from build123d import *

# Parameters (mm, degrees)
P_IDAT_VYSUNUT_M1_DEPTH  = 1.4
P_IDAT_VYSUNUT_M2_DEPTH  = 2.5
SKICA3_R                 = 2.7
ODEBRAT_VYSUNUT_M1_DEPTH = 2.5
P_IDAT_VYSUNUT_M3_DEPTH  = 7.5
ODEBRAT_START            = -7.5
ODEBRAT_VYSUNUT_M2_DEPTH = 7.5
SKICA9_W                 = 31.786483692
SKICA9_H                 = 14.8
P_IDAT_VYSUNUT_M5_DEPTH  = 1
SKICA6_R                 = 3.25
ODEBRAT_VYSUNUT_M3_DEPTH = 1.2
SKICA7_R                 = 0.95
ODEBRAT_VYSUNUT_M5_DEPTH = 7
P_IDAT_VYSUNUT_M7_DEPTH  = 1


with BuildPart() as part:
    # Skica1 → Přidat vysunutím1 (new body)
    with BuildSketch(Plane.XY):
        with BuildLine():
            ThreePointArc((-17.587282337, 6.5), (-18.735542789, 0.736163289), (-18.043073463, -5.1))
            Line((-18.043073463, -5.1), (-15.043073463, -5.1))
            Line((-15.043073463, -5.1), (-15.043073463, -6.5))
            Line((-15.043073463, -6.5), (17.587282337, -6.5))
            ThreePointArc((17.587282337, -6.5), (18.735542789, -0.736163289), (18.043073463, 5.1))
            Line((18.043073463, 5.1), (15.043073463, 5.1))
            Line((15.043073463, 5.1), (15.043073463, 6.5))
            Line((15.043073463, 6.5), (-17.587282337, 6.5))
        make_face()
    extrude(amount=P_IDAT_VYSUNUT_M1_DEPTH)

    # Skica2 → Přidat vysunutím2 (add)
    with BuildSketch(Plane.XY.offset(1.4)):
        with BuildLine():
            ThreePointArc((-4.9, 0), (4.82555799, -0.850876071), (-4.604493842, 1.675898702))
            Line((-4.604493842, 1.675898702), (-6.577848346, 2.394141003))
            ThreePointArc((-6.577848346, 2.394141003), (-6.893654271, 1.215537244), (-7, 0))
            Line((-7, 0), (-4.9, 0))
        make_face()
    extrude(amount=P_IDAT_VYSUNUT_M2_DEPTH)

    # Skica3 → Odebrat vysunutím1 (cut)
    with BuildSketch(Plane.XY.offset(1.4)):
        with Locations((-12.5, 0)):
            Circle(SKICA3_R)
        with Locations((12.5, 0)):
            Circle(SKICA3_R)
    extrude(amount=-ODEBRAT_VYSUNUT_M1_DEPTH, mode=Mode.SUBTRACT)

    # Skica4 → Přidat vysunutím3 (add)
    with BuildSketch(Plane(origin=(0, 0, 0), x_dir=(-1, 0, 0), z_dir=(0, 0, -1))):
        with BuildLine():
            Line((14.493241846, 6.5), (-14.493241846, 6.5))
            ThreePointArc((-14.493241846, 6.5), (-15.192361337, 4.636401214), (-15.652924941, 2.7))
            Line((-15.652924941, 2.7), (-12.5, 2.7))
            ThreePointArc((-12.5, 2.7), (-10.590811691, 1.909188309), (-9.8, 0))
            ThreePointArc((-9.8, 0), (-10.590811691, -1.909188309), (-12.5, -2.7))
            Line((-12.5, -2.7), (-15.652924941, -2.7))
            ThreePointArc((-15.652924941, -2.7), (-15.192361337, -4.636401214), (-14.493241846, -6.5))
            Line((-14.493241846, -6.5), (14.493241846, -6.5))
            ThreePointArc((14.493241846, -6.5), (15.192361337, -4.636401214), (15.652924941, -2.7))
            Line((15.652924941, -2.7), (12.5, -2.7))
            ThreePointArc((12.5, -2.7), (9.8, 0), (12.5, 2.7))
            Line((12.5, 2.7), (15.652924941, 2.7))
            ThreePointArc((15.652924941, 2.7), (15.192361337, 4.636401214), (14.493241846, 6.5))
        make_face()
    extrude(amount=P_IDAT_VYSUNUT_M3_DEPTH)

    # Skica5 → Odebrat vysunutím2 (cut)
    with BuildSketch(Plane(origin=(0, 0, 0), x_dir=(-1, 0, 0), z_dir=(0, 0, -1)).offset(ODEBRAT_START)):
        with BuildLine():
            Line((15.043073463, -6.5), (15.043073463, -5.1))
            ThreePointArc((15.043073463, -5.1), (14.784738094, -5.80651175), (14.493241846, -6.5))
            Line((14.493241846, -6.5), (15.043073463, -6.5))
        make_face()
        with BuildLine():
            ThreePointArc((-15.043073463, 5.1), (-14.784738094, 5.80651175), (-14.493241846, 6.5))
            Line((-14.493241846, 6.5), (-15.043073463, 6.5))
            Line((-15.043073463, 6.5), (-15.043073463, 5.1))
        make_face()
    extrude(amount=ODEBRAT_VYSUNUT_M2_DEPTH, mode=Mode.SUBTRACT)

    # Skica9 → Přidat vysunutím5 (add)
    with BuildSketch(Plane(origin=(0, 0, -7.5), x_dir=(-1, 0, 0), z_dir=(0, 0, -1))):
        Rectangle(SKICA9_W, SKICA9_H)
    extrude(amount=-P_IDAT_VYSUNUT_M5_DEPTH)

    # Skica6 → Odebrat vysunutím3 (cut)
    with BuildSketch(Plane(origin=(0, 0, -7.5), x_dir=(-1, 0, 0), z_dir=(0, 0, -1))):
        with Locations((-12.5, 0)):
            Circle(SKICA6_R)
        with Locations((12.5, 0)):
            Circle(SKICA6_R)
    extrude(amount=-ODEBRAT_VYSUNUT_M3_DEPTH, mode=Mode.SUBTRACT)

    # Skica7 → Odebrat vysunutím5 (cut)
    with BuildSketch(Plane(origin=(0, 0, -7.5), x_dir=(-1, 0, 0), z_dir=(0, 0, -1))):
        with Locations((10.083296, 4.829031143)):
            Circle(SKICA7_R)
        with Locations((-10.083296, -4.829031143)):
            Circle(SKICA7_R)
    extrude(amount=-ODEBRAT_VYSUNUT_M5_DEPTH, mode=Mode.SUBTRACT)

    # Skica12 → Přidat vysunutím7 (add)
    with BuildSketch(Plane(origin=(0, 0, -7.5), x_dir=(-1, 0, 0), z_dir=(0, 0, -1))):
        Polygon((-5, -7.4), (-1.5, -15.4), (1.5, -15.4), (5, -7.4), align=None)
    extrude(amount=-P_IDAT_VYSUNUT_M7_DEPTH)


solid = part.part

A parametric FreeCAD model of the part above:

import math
import FreeCAD as App
import Part
import Sketcher
Q = App.Units.Quantity

doc = App.newDocument("Part")
body = doc.addObject("PartDesign::Body", "Body")

# Sketch on XY plane
sketch1 = body.newObject("Sketcher::SketchObject", "Sketch")
sketch1.AttachmentSupport = (doc.getObject("XY_Plane"), [""])
sketch1.MapMode = "FlatFace"
sketch1.addGeometry(Part.ArcOfCircle(Part.Circle(App.Vector(0, 0, 0), App.Vector(0, 0, 1), 18.75), math.radians(159.716431), math.radians(195.783313)), False)
sketch1.addGeometry(Part.LineSegment(App.Vector(-18.043073, -5.1, 0), App.Vector(-15.043073, -5.1, 0)), False)
sketch1.addGeometry(Part.LineSegment(App.Vector(-15.043073, -5.1, 0), App.Vector(-15.043073, -6.5, 0)), False)
sketch1.addGeometry(Part.LineSegment(App.Vector(-15.043073, -6.5, 0), App.Vector(17.587282, -6.5, 0)), False)
sketch1.addGeometry(Part.ArcOfCircle(Part.Circle(App.Vector(0, 0, 0), App.Vector(0, 0, 1), 18.75), math.radians(-20.283569), math.radians(15.783313)), False)
sketch1.addGeometry(Part.LineSegment(App.Vector(18.043073, 5.1, 0), App.Vector(15.043073, 5.1, 0)), False)
sketch1.addGeometry(Part.LineSegment(App.Vector(15.043073, 5.1, 0), App.Vector(15.043073, 6.5, 0)), False)
sketch1.addGeometry(Part.LineSegment(App.Vector(15.043073, 6.5, 0), App.Vector(-17.587282, 6.5, 0)), False)
sketch1.addConstraint(Sketcher.Constraint("Coincident", 0, 2, 1, 1))
sketch1.addConstraint(Sketcher.Constraint("Coincident", 1, 2, 2, 1))
sketch1.addConstraint(Sketcher.Constraint("Coincident", 2, 2, 3, 1))
sketch1.addConstraint(Sketcher.Constraint("Coincident", 3, 2, 4, 1))
sketch1.addConstraint(Sketcher.Constraint("Coincident", 4, 2, 5, 1))
sketch1.addConstraint(Sketcher.Constraint("Coincident", 5, 2, 6, 1))
sketch1.addConstraint(Sketcher.Constraint("Coincident", 6, 2, 7, 1))
sketch1.addConstraint(Sketcher.Constraint("Coincident", 7, 2, 0, 1))
sketch1.addConstraint(Sketcher.Constraint("Horizontal", 1))
sketch1.addConstraint(Sketcher.Constraint("Vertical", 2))
sketch1.addConstraint(Sketcher.Constraint("Horizontal", 3))
sketch1.addConstraint(Sketcher.Constraint("Horizontal", 5))
sketch1.addConstraint(Sketcher.Constraint("Vertical", 6))
sketch1.addConstraint(Sketcher.Constraint("Horizontal", 7))
sketch1.addConstraint(Sketcher.Constraint("Coincident", 0, 3, -1, 1))
sketch1.addConstraint(Sketcher.Constraint("Coincident", 4, 3, -1, 1))
sketch1.addConstraint(Sketcher.Constraint("Equal", 0, 4))
sketch1.addConstraint(Sketcher.Constraint("Symmetric", 1, 2, 5, 2, -1, 1))
sketch1.addConstraint(Sketcher.Constraint("Equal", 3, 7))
sketch1.addConstraint(Sketcher.Constraint("DistanceX", 1, 1, 1, 2, 3.0))
sketch1.addConstraint(Sketcher.Constraint("Radius", 0, 18.75))
sketch1.addConstraint(Sketcher.Constraint("DistanceY", 2, 2, 2, 1, 1.4))
sketch1.addConstraint(Sketcher.Constraint("DistanceY", 3, 2, 6, 2, 13.0))
pad1 = body.newObject("PartDesign::Pad", "Pad")
pad1.Profile = sketch1
pad1.Length = 1.4

# Sketch on XY plane
sketch2 = body.newObject("Sketcher::SketchObject", "Sketch001")
sketch2.AttachmentSupport = (doc.getObject("XY_Plane"), [""])
sketch2.MapMode = "FlatFace"
sketch2.AttachmentOffset = App.Placement(App.Vector(0, 0, 1.4), App.Rotation())
sketch2.addGeometry(Part.ArcOfCircle(Part.Circle(App.Vector(0, 0, 0), App.Vector(0, 0, 1), 4.9), math.radians(180), math.radians(520)), False)
sketch2.addGeometry(Part.LineSegment(App.Vector(-4.604494, 1.675899, 0), App.Vector(-6.577848, 2.394141, 0)), False)
sketch2.addGeometry(Part.ArcOfCircle(Part.Circle(App.Vector(0, 0, 0), App.Vector(0, 0, 1), 7), math.radians(160), math.radians(180)), False)
sketch2.addGeometry(Part.LineSegment(App.Vector(-7, 0, 0), App.Vector(-4.9, 0, 0)), False)
sketch2.addConstraint(Sketcher.Constraint("Coincident", 0, 2, 1, 1))
sketch2.addConstraint(Sketcher.Constraint("Coincident", 1, 2, 2, 1))
sketch2.addConstraint(Sketcher.Constraint("Coincident", 2, 2, 3, 1))
sketch2.addConstraint(Sketcher.Constraint("Coincident", 3, 2, 0, 1))
sketch2.addConstraint(Sketcher.Constraint("Horizontal", 3))
sketch2.addConstraint(Sketcher.Constraint("Coincident", 0, 3, -1, 1))
sketch2.addConstraint(Sketcher.Constraint("Coincident", 2, 3, -1, 1))
sketch2.addConstraint(Sketcher.Constraint("PointOnObject", 2, 2, -1))
sketch2.addConstraint(Sketcher.Constraint("Radius", 2, 7.0))
sketch2.addConstraint(Sketcher.Constraint("Radius", 0, 4.9))
sketch2.addConstraint(Sketcher.Constraint("Angle", 1, Q("160 deg")))
sketch2.addConstraint(Sketcher.Constraint("DistanceY", -1, 1, 0, 2, 1.675899))
pad2 = body.newObject("PartDesign::Pad", "Pad001")
pad2.Profile = sketch2
pad2.Length = 2.5

# Sketch on XY plane
sketch3 = body.newObject("Sketcher::SketchObject", "Sketch002")
sketch3.AttachmentSupport = (doc.getObject("XY_Plane"), [""])
sketch3.MapMode = "FlatFace"
sketch3.AttachmentOffset = App.Placement(App.Vector(0, 0, 1.4), App.Rotation())
sketch3.addGeometry(Part.Circle(App.Vector(-12.5, 0, 0), App.Vector(0, 0, 1), 2.7), False)
sketch3.addGeometry(Part.Circle(App.Vector(12.5, 0, 0), App.Vector(0, 0, 1), 2.7), False)
sketch3.addConstraint(Sketcher.Constraint("Equal", 0, 1))
sketch3.addConstraint(Sketcher.Constraint("Symmetric", 0, 3, 1, 3, -1, 1))
sketch3.addConstraint(Sketcher.Constraint("PointOnObject", 0, 3, -1))
sketch3.addConstraint(Sketcher.Constraint("Diameter", 0, 5.4))
sketch3.addConstraint(Sketcher.Constraint("DistanceX", 0, 3, 1, 3, 25.0))
pocket1 = body.newObject("PartDesign::Pocket", "Pocket")
pocket1.Profile = sketch3
pocket1.Length = 2.5

# Sketch on XY plane
sketch4 = body.newObject("Sketcher::SketchObject", "Sketch003")
sketch4.AttachmentSupport = (doc.getObject("XY_Plane"), [""])
sketch4.MapMode = "FlatFace"
sketch4.addGeometry(Part.LineSegment(App.Vector(-14.493242, 6.5, 0), App.Vector(14.493242, 6.5, 0)), False)
sketch4.addGeometry(Part.ArcOfCircle(Part.Circle(App.Vector(0, 0, 0), App.Vector(0, 0, 1), 15.884082), math.radians(9.786743), math.radians(24.155514)), False)
sketch4.addGeometry(Part.LineSegment(App.Vector(15.652925, 2.7, 0), App.Vector(12.5, 2.7, 0)), False)
sketch4.addGeometry(Part.ArcOfCircle(Part.Circle(App.Vector(12.5, 0, 0), App.Vector(0, 0, 1), 2.7), math.radians(90), math.radians(180)), False)
sketch4.addGeometry(Part.ArcOfCircle(Part.Circle(App.Vector(12.5, 0, 0), App.Vector(0, 0, 1), 2.7), math.radians(-180), math.radians(-90)), False)
sketch4.addGeometry(Part.LineSegment(App.Vector(12.5, -2.7, 0), App.Vector(15.652925, -2.7, 0)), False)
sketch4.addGeometry(Part.ArcOfCircle(Part.Circle(App.Vector(0, 0, 0), App.Vector(0, 0, 1), 15.884082), math.radians(-24.155514), math.radians(-9.786743)), False)
sketch4.addGeometry(Part.LineSegment(App.Vector(14.493242, -6.5, 0), App.Vector(-14.493242, -6.5, 0)), False)
sketch4.addGeometry(Part.ArcOfCircle(Part.Circle(App.Vector(0, 0, 0), App.Vector(0, 0, 1), 15.884082), math.radians(-170.213257), math.radians(-155.844486)), False)
sketch4.addGeometry(Part.LineSegment(App.Vector(-15.652925, -2.7, 0), App.Vector(-12.5, -2.7, 0)), False)
sketch4.addGeometry(Part.ArcOfCircle(Part.Circle(App.Vector(-12.5, 0, 0), App.Vector(0, 0, 1), 2.7), math.radians(-90), math.radians(90)), False)
sketch4.addGeometry(Part.LineSegment(App.Vector(-12.5, 2.7, 0), App.Vector(-15.652925, 2.7, 0)), False)
sketch4.addGeometry(Part.ArcOfCircle(Part.Circle(App.Vector(0, 0, 0), App.Vector(0, 0, 1), 15.884082), math.radians(155.844486), math.radians(170.213257)), False)
sketch4.addConstraint(Sketcher.Constraint("Coincident", 0, 2, 1, 2))
sketch4.addConstraint(Sketcher.Constraint("Coincident", 1, 1, 2, 1))
sketch4.addConstraint(Sketcher.Constraint("Tangent", 2, 2, 3, 1))
sketch4.addConstraint(Sketcher.Constraint("Tangent", 3, 2, 4, 1))
sketch4.addConstraint(Sketcher.Constraint("Tangent", 4, 2, 5, 1))
sketch4.addConstraint(Sketcher.Constraint("Coincident", 5, 2, 6, 2))
sketch4.addConstraint(Sketcher.Constraint("Coincident", 6, 1, 7, 1))
sketch4.addConstraint(Sketcher.Constraint("Coincident", 7, 2, 8, 2))
sketch4.addConstraint(Sketcher.Constraint("Coincident", 8, 1, 9, 1))
sketch4.addConstraint(Sketcher.Constraint("Tangent", 9, 2, 10, 1))
sketch4.addConstraint(Sketcher.Constraint("Tangent", 10, 2, 11, 1))
sketch4.addConstraint(Sketcher.Constraint("Coincident", 11, 2, 12, 2))
sketch4.addConstraint(Sketcher.Constraint("Coincident", 12, 1, 0, 1))
sketch4.addConstraint(Sketcher.Constraint("Horizontal", 0))
sketch4.addConstraint(Sketcher.Constraint("Horizontal", 2))
sketch4.addConstraint(Sketcher.Constraint("Horizontal", 5))
sketch4.addConstraint(Sketcher.Constraint("Horizontal", 7))
sketch4.addConstraint(Sketcher.Constraint("Horizontal", 9))
sketch4.addConstraint(Sketcher.Constraint("Horizontal", 11))
sketch4.addConstraint(Sketcher.Constraint("Coincident", 1, 3, -1, 1))
sketch4.addConstraint(Sketcher.Constraint("Coincident", 6, 3, -1, 1))
sketch4.addConstraint(Sketcher.Constraint("Coincident", 8, 3, -1, 1))
sketch4.addConstraint(Sketcher.Constraint("Coincident", 12, 3, -1, 1))
sketch4.addConstraint(Sketcher.Constraint("Equal", 3, 4))
sketch4.addConstraint(Sketcher.Constraint("Equal", 1, 6))
sketch4.addConstraint(Sketcher.Constraint("Equal", 6, 8))
sketch4.addConstraint(Sketcher.Constraint("Equal", 4, 10))
sketch4.addConstraint(Sketcher.Constraint("Equal", 8, 12))
sketch4.addConstraint(Sketcher.Constraint("Symmetric", 3, 3, 10, 3, -1, 1))
sketch4.addConstraint(Sketcher.Constraint("PointOnObject", 3, 3, -1))
sketch4.addConstraint(Sketcher.Constraint("PointOnObject", 3, 2, -1))
sketch4.addConstraint(Sketcher.Constraint("Vertical", 0, 2, 6, 1))
sketch4.addConstraint(Sketcher.Constraint("Radius", 3, 2.7))
sketch4.addConstraint(Sketcher.Constraint("DistanceX", 10, 3, 3, 3, 25.0))
sketch4.addConstraint(Sketcher.Constraint("DistanceY", -1, 1, 0, 2, 6.5))
sketch4.addConstraint(Sketcher.Constraint("Radius", 1, 15.884082))
pad3 = body.newObject("PartDesign::Pad", "Pad002")
pad3.Profile = sketch4
pad3.Length = 7.5
pad3.Reversed = True

# Sketch on XY plane
sketch5 = body.newObject("Sketcher::SketchObject", "Sketch004")
sketch5.AttachmentSupport = (doc.getObject("XY_Plane"), [""])
sketch5.MapMode = "FlatFace"
sketch5.AttachmentOffset = App.Placement(App.Vector(0, 0, 7.5), App.Rotation())
sketch5.addGeometry(Part.LineSegment(App.Vector(-15.043073, -6.5, 0), App.Vector(-15.043073, -5.1, 0)), False)
sketch5.addGeometry(Part.ArcOfCircle(Part.Circle(App.Vector(0, 0, 0), App.Vector(0, 0, 1), 15.884082), math.radians(-161.271981), math.radians(-155.844486)), False)
sketch5.addGeometry(Part.LineSegment(App.Vector(-14.493242, -6.5, 0), App.Vector(-15.043073, -6.5, 0)), False)
sketch5.addGeometry(Part.ArcOfCircle(Part.Circle(App.Vector(0, 0, 0), App.Vector(0, 0, 1), 15.884082), math.radians(18.728019), math.radians(24.155514)), False)
sketch5.addGeometry(Part.LineSegment(App.Vector(14.493242, 6.5, 0), App.Vector(15.043073, 6.5, 0)), False)
sketch5.addGeometry(Part.LineSegment(App.Vector(15.043073, 6.5, 0), App.Vector(15.043073, 5.1, 0)), False)
sketch5.addConstraint(Sketcher.Constraint("Coincident", 0, 2, 1, 1))
sketch5.addConstraint(Sketcher.Constraint("Coincident", 1, 2, 2, 1))
sketch5.addConstraint(Sketcher.Constraint("Coincident", 2, 2, 0, 1))
sketch5.addConstraint(Sketcher.Constraint("Coincident", 3, 2, 4, 1))
sketch5.addConstraint(Sketcher.Constraint("Coincident", 4, 2, 5, 1))
sketch5.addConstraint(Sketcher.Constraint("Coincident", 5, 2, 3, 1))
sketch5.addConstraint(Sketcher.Constraint("Vertical", 0))
sketch5.addConstraint(Sketcher.Constraint("Horizontal", 2))
sketch5.addConstraint(Sketcher.Constraint("Horizontal", 4))
sketch5.addConstraint(Sketcher.Constraint("Vertical", 5))
sketch5.addConstraint(Sketcher.Constraint("Coincident", 1, 3, -1, 1))
sketch5.addConstraint(Sketcher.Constraint("Coincident", 3, 3, -1, 1))
sketch5.addConstraint(Sketcher.Constraint("Equal", 1, 3))
sketch5.addConstraint(Sketcher.Constraint("Symmetric", 2, 2, 4, 2, -1, 1))
sketch5.addConstraint(Sketcher.Constraint("DistanceY", 0, 1, 0, 2, 1.4))
sketch5.addConstraint(Sketcher.Constraint("DistanceY", 1, 2, 3, 2, 13.0))
sketch5.addConstraint(Sketcher.Constraint("Radius", 1, 15.884082))
pocket2 = body.newObject("PartDesign::Pocket", "Pocket001")
pocket2.Profile = sketch5
pocket2.Length = 7.5

# Sketch on XY plane
sketch6 = body.newObject("Sketcher::SketchObject", "Sketch005")
sketch6.AttachmentSupport = (doc.getObject("XY_Plane"), [""])
sketch6.MapMode = "FlatFace"
sketch6.AttachmentOffset = App.Placement(App.Vector(0, 0, -7.5), App.Rotation())
sketch6.addGeometry(Part.LineSegment(App.Vector(15.893242, 7.4, 0), App.Vector(15.893242, -7.4, 0)), False)
sketch6.addGeometry(Part.LineSegment(App.Vector(15.893242, -7.4, 0), App.Vector(-15.893242, -7.4, 0)), False)
sketch6.addGeometry(Part.LineSegment(App.Vector(-15.893242, -7.4, 0), App.Vector(-15.893242, 7.4, 0)), False)
sketch6.addGeometry(Part.LineSegment(App.Vector(-15.893242, 7.4, 0), App.Vector(15.893242, 7.4, 0)), False)
sketch6.addConstraint(Sketcher.Constraint("Coincident", 0, 2, 1, 1))
sketch6.addConstraint(Sketcher.Constraint("Coincident", 1, 2, 2, 1))
sketch6.addConstraint(Sketcher.Constraint("Coincident", 2, 2, 3, 1))
sketch6.addConstraint(Sketcher.Constraint("Coincident", 3, 2, 0, 1))
sketch6.addConstraint(Sketcher.Constraint("Vertical", 0))
sketch6.addConstraint(Sketcher.Constraint("Horizontal", 1))
sketch6.addConstraint(Sketcher.Constraint("Vertical", 2))
sketch6.addConstraint(Sketcher.Constraint("Horizontal", 3))
sketch6.addConstraint(Sketcher.Constraint("Symmetric", 0, 2, 2, 2, -1, 1))
sketch6.addConstraint(Sketcher.Constraint("DistanceY", 0, 2, 0, 1, 14.8))
sketch6.addConstraint(Sketcher.Constraint("DistanceX", 1, 2, 1, 1, 31.786484))
pad4 = body.newObject("PartDesign::Pad", "Pad003")
pad4.Profile = sketch6
pad4.Length = 1

# Sketch on XY plane
sketch7 = body.newObject("Sketcher::SketchObject", "Sketch006")
sketch7.AttachmentSupport = (doc.getObject("XY_Plane"), [""])
sketch7.MapMode = "FlatFace"
sketch7.AttachmentOffset = App.Placement(App.Vector(0, 0, -7.5), App.Rotation())
sketch7.addGeometry(Part.Circle(App.Vector(12.5, 0, 0), App.Vector(0, 0, 1), 3.25), False)
sketch7.addGeometry(Part.Circle(App.Vector(-12.5, 0, 0), App.Vector(0, 0, 1), 3.25), False)
sketch7.addConstraint(Sketcher.Constraint("Equal", 0, 1))
sketch7.addConstraint(Sketcher.Constraint("Symmetric", 0, 3, 1, 3, -1, 1))
sketch7.addConstraint(Sketcher.Constraint("PointOnObject", 0, 3, -1))
sketch7.addConstraint(Sketcher.Constraint("Diameter", 0, 6.5))
sketch7.addConstraint(Sketcher.Constraint("DistanceX", 1, 3, 0, 3, 25.0))
pocket3 = body.newObject("PartDesign::Pocket", "Pocket002")
pocket3.Profile = sketch7
pocket3.Length = 1.2
pocket3.Reversed = True

# Sketch on XY plane
sketch8 = body.newObject("Sketcher::SketchObject", "Sketch007")
sketch8.AttachmentSupport = (doc.getObject("XY_Plane"), [""])
sketch8.MapMode = "FlatFace"
sketch8.AttachmentOffset = App.Placement(App.Vector(0, 0, -7.5), App.Rotation())
sketch8.addGeometry(Part.Circle(App.Vector(-10.083296, 4.829031, 0), App.Vector(0, 0, 1), 0.95), False)
sketch8.addGeometry(Part.Circle(App.Vector(10.083296, -4.829031, 0), App.Vector(0, 0, 1), 0.95), False)
sketch8.addConstraint(Sketcher.Constraint("Equal", 0, 1))
sketch8.addConstraint(Sketcher.Constraint("Symmetric", 0, 3, 1, 3, -1, 1))
sketch8.addConstraint(Sketcher.Constraint("Diameter", 0, 1.9))
sketch8.addConstraint(Sketcher.Constraint("DistanceY", -1, 1, 0, 3, 4.829031))
sketch8.addConstraint(Sketcher.Constraint("DistanceX", 0, 3, -1, 1, 10.083296))
pocket4 = body.newObject("PartDesign::Pocket", "Pocket003")
pocket4.Profile = sketch8
pocket4.Length = 7
pocket4.Reversed = True

# Sketch on XY plane
sketch9 = body.newObject("Sketcher::SketchObject", "Sketch008")
sketch9.AttachmentSupport = (doc.getObject("XY_Plane"), [""])
sketch9.MapMode = "FlatFace"
sketch9.AttachmentOffset = App.Placement(App.Vector(0, 0, -7.5), App.Rotation())
sketch9.addGeometry(Part.LineSegment(App.Vector(5, -7.4, 0), App.Vector(1.5, -15.4, 0)), False)
sketch9.addGeometry(Part.LineSegment(App.Vector(1.5, -15.4, 0), App.Vector(-1.5, -15.4, 0)), False)
sketch9.addGeometry(Part.LineSegment(App.Vector(-1.5, -15.4, 0), App.Vector(-5, -7.4, 0)), False)
sketch9.addGeometry(Part.LineSegment(App.Vector(-5, -7.4, 0), App.Vector(5, -7.4, 0)), False)
sketch9.addConstraint(Sketcher.Constraint("Coincident", 0, 2, 1, 1))
sketch9.addConstraint(Sketcher.Constraint("Coincident", 1, 2, 2, 1))
sketch9.addConstraint(Sketcher.Constraint("Coincident", 2, 2, 3, 1))
sketch9.addConstraint(Sketcher.Constraint("Coincident", 3, 2, 0, 1))
sketch9.addConstraint(Sketcher.Constraint("Horizontal", 1))
sketch9.addConstraint(Sketcher.Constraint("Horizontal", 3))
sketch9.addConstraint(Sketcher.Constraint("Equal", 0, 2))
sketch9.addConstraint(Sketcher.Constraint("DistanceX", 1, 2, 1, 1, 3.0))
sketch9.addConstraint(Sketcher.Constraint("DistanceX", 3, 1, 3, 2, 10.0))
sketch9.addConstraint(Sketcher.Constraint("DistanceX", 2, 2, -1, 1, 5.0))
sketch9.addConstraint(Sketcher.Constraint("DistanceY", 1, 2, 2, 2, 8.0))
sketch9.addConstraint(Sketcher.Constraint("DistanceY", 0, 2, -1, 1, 15.4))
pad5 = body.newObject("PartDesign::Pad", "Pad004")
pad5.Profile = sketch9
pad5.Length = 1

doc.recompute()
